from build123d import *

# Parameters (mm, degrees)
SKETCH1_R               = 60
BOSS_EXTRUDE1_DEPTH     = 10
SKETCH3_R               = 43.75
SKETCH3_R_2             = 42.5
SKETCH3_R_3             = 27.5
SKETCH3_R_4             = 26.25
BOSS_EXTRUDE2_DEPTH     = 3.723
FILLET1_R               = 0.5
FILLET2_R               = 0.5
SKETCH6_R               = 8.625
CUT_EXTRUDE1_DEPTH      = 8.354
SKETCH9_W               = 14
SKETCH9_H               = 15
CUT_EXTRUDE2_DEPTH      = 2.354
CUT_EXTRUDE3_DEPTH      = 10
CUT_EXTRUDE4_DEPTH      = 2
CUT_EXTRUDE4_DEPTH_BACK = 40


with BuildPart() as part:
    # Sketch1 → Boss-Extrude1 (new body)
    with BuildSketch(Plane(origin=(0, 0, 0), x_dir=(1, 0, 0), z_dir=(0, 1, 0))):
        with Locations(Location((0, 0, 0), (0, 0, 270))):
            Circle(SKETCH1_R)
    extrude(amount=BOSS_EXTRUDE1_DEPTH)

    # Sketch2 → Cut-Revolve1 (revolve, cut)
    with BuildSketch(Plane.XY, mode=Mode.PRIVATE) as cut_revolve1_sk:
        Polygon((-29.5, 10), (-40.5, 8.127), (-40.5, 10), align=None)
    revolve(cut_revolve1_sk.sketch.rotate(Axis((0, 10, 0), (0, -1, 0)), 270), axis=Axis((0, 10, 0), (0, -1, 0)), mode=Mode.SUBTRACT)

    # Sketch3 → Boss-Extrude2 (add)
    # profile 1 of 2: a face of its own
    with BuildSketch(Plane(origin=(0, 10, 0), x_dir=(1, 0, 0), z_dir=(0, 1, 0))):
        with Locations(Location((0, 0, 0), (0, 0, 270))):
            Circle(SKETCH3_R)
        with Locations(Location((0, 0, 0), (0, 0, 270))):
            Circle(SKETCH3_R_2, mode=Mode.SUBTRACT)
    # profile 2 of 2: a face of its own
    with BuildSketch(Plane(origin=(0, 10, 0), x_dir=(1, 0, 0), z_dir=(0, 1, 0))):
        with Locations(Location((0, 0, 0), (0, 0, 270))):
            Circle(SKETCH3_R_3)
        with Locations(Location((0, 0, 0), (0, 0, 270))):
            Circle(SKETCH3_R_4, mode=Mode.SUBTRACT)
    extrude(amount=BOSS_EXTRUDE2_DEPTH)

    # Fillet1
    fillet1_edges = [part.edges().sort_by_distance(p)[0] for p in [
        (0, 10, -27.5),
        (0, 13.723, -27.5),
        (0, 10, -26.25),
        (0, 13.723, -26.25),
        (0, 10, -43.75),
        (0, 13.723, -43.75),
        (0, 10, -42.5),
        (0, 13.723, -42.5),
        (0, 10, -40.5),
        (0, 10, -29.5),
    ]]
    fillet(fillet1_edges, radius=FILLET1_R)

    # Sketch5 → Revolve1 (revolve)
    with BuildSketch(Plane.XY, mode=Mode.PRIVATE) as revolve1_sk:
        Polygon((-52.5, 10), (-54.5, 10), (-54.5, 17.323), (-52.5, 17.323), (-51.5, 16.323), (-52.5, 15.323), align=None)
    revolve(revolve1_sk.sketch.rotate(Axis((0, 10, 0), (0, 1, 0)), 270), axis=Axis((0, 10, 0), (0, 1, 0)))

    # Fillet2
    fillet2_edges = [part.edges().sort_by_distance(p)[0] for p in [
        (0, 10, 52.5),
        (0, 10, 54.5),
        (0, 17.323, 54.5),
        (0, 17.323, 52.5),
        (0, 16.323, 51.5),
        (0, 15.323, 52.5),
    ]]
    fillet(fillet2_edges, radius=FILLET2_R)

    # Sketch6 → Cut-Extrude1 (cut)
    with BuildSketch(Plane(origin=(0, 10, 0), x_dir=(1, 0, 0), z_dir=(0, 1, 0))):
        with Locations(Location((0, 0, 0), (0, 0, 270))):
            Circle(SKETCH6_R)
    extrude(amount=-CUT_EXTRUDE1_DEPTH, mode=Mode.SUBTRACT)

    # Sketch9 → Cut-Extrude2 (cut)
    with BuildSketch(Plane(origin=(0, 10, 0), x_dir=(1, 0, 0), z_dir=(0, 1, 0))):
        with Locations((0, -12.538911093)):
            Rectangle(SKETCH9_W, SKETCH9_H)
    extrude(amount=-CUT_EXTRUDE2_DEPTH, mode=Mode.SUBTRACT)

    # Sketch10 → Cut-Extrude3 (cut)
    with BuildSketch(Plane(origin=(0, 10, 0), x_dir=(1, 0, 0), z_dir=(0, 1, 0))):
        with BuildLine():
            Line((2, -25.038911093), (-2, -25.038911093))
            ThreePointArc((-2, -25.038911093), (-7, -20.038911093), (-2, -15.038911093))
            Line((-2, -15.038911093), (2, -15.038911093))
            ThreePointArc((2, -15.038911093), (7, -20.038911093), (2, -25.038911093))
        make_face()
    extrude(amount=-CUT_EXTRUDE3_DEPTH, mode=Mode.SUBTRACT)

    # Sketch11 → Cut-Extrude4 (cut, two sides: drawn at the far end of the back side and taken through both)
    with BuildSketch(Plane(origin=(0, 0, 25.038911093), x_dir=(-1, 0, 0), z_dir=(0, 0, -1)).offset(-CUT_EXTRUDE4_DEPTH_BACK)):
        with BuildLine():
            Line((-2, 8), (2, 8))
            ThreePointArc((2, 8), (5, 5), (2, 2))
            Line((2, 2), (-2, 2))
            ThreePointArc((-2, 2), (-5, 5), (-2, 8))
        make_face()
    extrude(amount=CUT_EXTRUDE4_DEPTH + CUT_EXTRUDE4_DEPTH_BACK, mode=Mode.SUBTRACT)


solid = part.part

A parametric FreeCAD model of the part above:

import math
import FreeCAD as App
import Part
import Sketcher


def edges_at(feature, points):
    """Names of the edges that pass closest to the given points."""
    edges = feature.Shape.Edges
    near = lambda p: min(range(len(edges)), key=lambda i: edges[i].distToShape(Part.Vertex(*p))[0])
    return sorted({f"Edge{near(p) + 1}" for p in points})

doc = App.newDocument("Part")
params = doc.addObject("Spreadsheet::Sheet", "Params")
for row, (alias, value) in enumerate([
    ("sketch1_diameter", "120 mm"),
    ("pad1_length", "10 mm"),
    ("sketch2_width", "11 mm"),
    ("groove_angle", "360 deg"),
    ("sketch3_diameter", "85 mm"),
    ("sketch3_diameter2", "55 mm"),
    ("sketch3_diameter3", "87.5 mm"),
    ("sketch3_diameter4", "52.5 mm"),
    ("pad2_length", "3.723 mm"),
    ("fillet_radius", "0.5 mm"),
    ("sketch4_width", "2 mm"),
    ("revolution_angle", "360 deg"),
    ("fillet2_radius", "0.5 mm"),
    ("sketch5_diameter", "17.25 mm"),
    ("pocket1_length", "8.354 mm"),
    ("sketch6_width", "14 mm"),
    ("sketch6_height", "15 mm"),
    ("pocket2_length", "2.354 mm"),
    ("sketch7_radius", "5 mm"),
    ("sketch7_width", "4 mm"),
    ("pocket3_length", "10 mm"),
    ("sketch8_radius", "3 mm"),
    ("sketch8_width", "4 mm"),
    ("pocket4_length", "2 mm"),
    ("pocket4_length2", "40 mm"),
], start=1):
    params.set(f"A{row}", alias)
    params.set(f"B{row}", "=" + value)
    params.setAlias(f"B{row}", alias)

body = doc.addObject("PartDesign::Body", "Body")

sketch1 = doc.addObject("Sketcher::SketchObject", "Sketch")
body.addObject(sketch1)
sketch1.AttachmentSupport = (doc.XZ_Plane, [""])
sketch1.MapMode = "FlatFace"
sketch1.addGeometry(Part.Circle(App.Vector(0, 0, 0), App.Vector(0, 0, 1), 60), False)
sketch1.addConstraint([
    Sketcher.Constraint("Coincident", 0, 3, -1, 1),
    Sketcher.Constraint("Diameter", 0, 120.0),
])
sketch1.setExpression("Constraints[1]", "Params.sketch1_diameter")
pad1 = doc.addObject("PartDesign::Pad", "Pad")
body.addObject(pad1)
pad1.Profile = sketch1
pad1.setExpression("Length", "Params.pad1_length")
pad1.Reversed = True

sketch2 = doc.addObject("Sketcher::SketchObject", "Sketch001")
body.addObject(sketch2)
sketch2.AttachmentSupport = (doc.XY_Plane, [""])
sketch2.MapMode = "FlatFace"
sketch2.addGeometry([
    Part.LineSegment(App.Vector(-40.5, 8.1, 0), App.Vector(-29.5, 10, 0)),
    Part.LineSegment(App.Vector(-29.5, 10, 0), App.Vector(-40.5, 10, 0)),
    Part.LineSegment(App.Vector(-40.5, 10, 0), App.Vector(-40.5, 8.1, 0)),
], False)
sketch2.addConstraint([
    Sketcher.Constraint("Coincident", 0, 2, 1, 1),
    Sketcher.Constraint("Coincident", 1, 2, 2, 1),
    Sketcher.Constraint("Coincident", 2, 2, 0, 1),
    Sketcher.Constraint("Horizontal", 1),
    Sketcher.Constraint("Vertical", 2),
    Sketcher.Constraint("DistanceX", 1, 2, 1, 1, 11.0),
    Sketcher.Constraint("DistanceY", -1, 1, 0, 2, 10.0),
    Sketcher.Constraint("DistanceX", 0, 2, -1, 1, 29.5),
    Sketcher.Constraint("DistanceY", 2, 2, 2, 1, 1.873),
])
sketch2.setExpression("Constraints[5]", "Params.sketch2_width")
groove = doc.addObject("PartDesign::Groove", "Groove")
body.addObject(groove)
groove.Profile = sketch2
groove.ReferenceAxis = (sketch2, ["V_Axis"])
groove.setExpression("Angle", "Params.groove_angle")

sketch3 = doc.addObject("Sketcher::SketchObject", "Sketch002")
body.addObject(sketch3)
sketch3.AttachmentSupport = (doc.XZ_Plane, [""])
sketch3.MapMode = "FlatFace"
sketch3.AttachmentOffset = App.Placement(App.Vector(0, 0, -10), App.Rotation())
sketch3.addGeometry([
    Part.Circle(App.Vector(0, 0, 0), App.Vector(0, 0, 1), 44),
    Part.Circle(App.Vector(0, 0, 0), App.Vector(0, 0, 1), 42),
    Part.Circle(App.Vector(0, 0, 0), App.Vector(0, 0, 1), 28),
    Part.Circle(App.Vector(0, 0, 0), App.Vector(0, 0, 1), 26),
], False)
sketch3.addConstraint([
    Sketcher.Constraint("Coincident", 0, 3, -1, 1),
    Sketcher.Constraint("Coincident", 1, 3, -1, 1),
    Sketcher.Constraint("Coincident", 2, 3, -1, 1),
    Sketcher.Constraint("Coincident", 3, 3, -1, 1),
    Sketcher.Constraint("Diameter", 1, 85.0),
    Sketcher.Constraint("Diameter", 2, 55.0),
    Sketcher.Constraint("Diameter", 0, 87.5),
    Sketcher.Constraint("Diameter", 3, 52.5),
])
sketch3.setExpression("Constraints[4]", "Params.sketch3_diameter")
sketch3.setExpression("Constraints[5]", "Params.sketch3_diameter2")
sketch3.setExpression("Constraints[6]", "Params.sketch3_diameter3")
sketch3.setExpression("Constraints[7]", "Params.sketch3_diameter4")
pad2 = doc.addObject("PartDesign::Pad", "Pad001")
body.addObject(pad2)
pad2.Profile = sketch3
pad2.setExpression("Length", "Params.pad2_length")
pad2.Reversed = True
doc.recompute()

fillet = doc.addObject("PartDesign::Fillet", "Fillet")
body.addObject(fillet)
fillet.Base = (pad2, edges_at(pad2, [
    (0, 10, -27.5),
    (0, 13.723, -27.5),
    (0, 10, -26.25),
    (0, 13.723, -26.25),
    (0, 10, -43.75),
    (0, 13.723, -43.75),
    (0, 10, -42.5),
    (0, 13.723, -42.5),
    (0, 10, -40.5),
    (0, 10, -29.5),
]))
fillet.setExpression("Radius", "Params.fillet_radius")

sketch4 = doc.addObject("Sketcher::SketchObject", "Sketch003")
body.addObject(sketch4)
sketch4.AttachmentSupport = (doc.XY_Plane, [""])
sketch4.MapMode = "FlatFace"
sketch4.addGeometry([
    Part.LineSegment(App.Vector(-54.5, 10, 0), App.Vector(-52.5, 10, 0)),
    Part.LineSegment(App.Vector(-52.5, 10, 0), App.Vector(-52.5, 15.3, 0)),
    Part.LineSegment(App.Vector(-52.5, 15.3, 0), App.Vector(-51.5, 16.3, 0)),
    Part.LineSegment(App.Vector(-51.5, 16.3, 0), App.Vector(-52.5, 17.3, 0)),
    Part.LineSegment(App.Vector(-52.5, 17.3, 0), App.Vector(-54.5, 17.3, 0)),
    Part.LineSegment(App.Vector(-54.5, 17.3, 0), App.Vector(-54.5, 10, 0)),
], False)
sketch4.addConstraint([
    Sketcher.Constraint("Coincident", 0, 2, 1, 1),
    Sketcher.Constraint("Coincident", 1, 2, 2, 1),
    Sketcher.Constraint("Coincident", 2, 2, 3, 1),
    Sketcher.Constraint("Coincident", 3, 2, 4, 1),
    Sketcher.Constraint("Coincident", 4, 2, 5, 1),
    Sketcher.Constraint("Coincident", 5, 2, 0, 1),
    Sketcher.Constraint("Horizontal", 0),
    Sketcher.Constraint("Vertical", 1),
    Sketcher.Constraint("Horizontal", 4),
    Sketcher.Constraint("Vertical", 5),
    Sketcher.Constraint("Perpendicular", 2, 3),
    Sketcher.Constraint("Vertical", 1, 2, 3, 2),
    Sketcher.Constraint("Equal", 2, 3),
    Sketcher.Constraint("DistanceX", 0, 1, 0, 2, 2.0),
    Sketcher.Constraint("DistanceY", -1, 1, 0, 2, 10.0),
    Sketcher.Constraint("DistanceX", 1, 2, 2, 2, 1.0),
    Sketcher.Constraint("DistanceX", 0, 2, -1, 1, 52.5),
    Sketcher.Constraint("DistanceY", 1, 1, 1, 2, 5.323),
])
sketch4.setExpression("Constraints[13]", "Params.sketch4_width")
revolution = doc.addObject("PartDesign::Revolution", "Revolution")
body.addObject(revolution)
revolution.Profile = sketch4
revolution.ReferenceAxis = (sketch4, ["V_Axis"])
revolution.setExpression("Angle", "Params.revolution_angle")
doc.recompute()

fillet2 = doc.addObject("PartDesign::Fillet", "Fillet001")
body.addObject(fillet2)
fillet2.Base = (revolution, edges_at(revolution, [
    (0, 10, 52.5),
    (0, 10, 54.5),
    (0, 17.323, 54.5),
    (0, 17.323, 52.5),
    (0, 16.323, 51.5),
    (0, 15.323, 52.5),
]))
fillet2.setExpression("Radius", "Params.fillet2_radius")

sketch5 = doc.addObject("Sketcher::SketchObject", "Sketch004")
body.addObject(sketch5)
sketch5.AttachmentSupport = (doc.XZ_Plane, [""])
sketch5.MapMode = "FlatFace"
sketch5.AttachmentOffset = App.Placement(App.Vector(0, 0, -10), App.Rotation())
sketch5.addGeometry(Part.Circle(App.Vector(0, 0, 0), App.Vector(0, 0, 1), 9), False)
sketch5.addConstraint([
    Sketcher.Constraint("Coincident", 0, 3, -1, 1),
    Sketcher.Constraint("Diameter", 0, 17.25),
])
sketch5.setExpression("Constraints[1]", "Params.sketch5_diameter")
pocket1 = doc.addObject("PartDesign::Pocket", "Pocket")
body.addObject(pocket1)
pocket1.Profile = sketch5
pocket1.setExpression("Length", "Params.pocket1_length")
pocket1.Reversed = True

sketch6 = doc.addObject("Sketcher::SketchObject", "Sketch005")
body.addObject(sketch6)
sketch6.AttachmentSupport = (doc.XZ_Plane, [""])
sketch6.MapMode = "FlatFace"
sketch6.AttachmentOffset = App.Placement(App.Vector(0, 0, -10), App.Rotation())
sketch6.addGeometry([
    Part.LineSegment(App.Vector(-7, 5, 0), App.Vector(-7, 20, 0)),
    Part.LineSegment(App.Vector(-7, 20, 0), App.Vector(7, 20, 0)),
    Part.LineSegment(App.Vector(7, 20, 0), App.Vector(7, 5, 0)),
    Part.LineSegment(App.Vector(7, 5, 0), App.Vector(-7, 5, 0)),
], False)
sketch6.addConstraint([
    Sketcher.Constraint("Coincident", 0, 2, 1, 1),
    Sketcher.Constraint("Coincident", 1, 2, 2, 1),
    Sketcher.Constraint("Coincident", 2, 2, 3, 1),
    Sketcher.Constraint("Coincident", 3, 2, 0, 1),
    Sketcher.Constraint("Vertical", 0),
    Sketcher.Constraint("Horizontal", 1),
    Sketcher.Constraint("Vertical", 2),
    Sketcher.Constraint("Horizontal", 3),
    Sketcher.Constraint("DistanceX", 1, 1, 1, 2, 14.0),
    Sketcher.Constraint("DistanceY", 0, 1, 0, 2, 15.0),
    Sketcher.Constraint("DistanceX", 0, 2, -1, 1, 7.0),
    Sketcher.Constraint("DistanceY", -1, 1, 0, 2, 20.038911),
])
sketch6.setExpression("Constraints[8]", "Params.sketch6_width")
sketch6.setExpression("Constraints[9]", "Params.sketch6_height")
pocket2 = doc.addObject("PartDesign::Pocket", "Pocket001")
body.addObject(pocket2)
pocket2.Profile = sketch6
pocket2.setExpression("Length", "Params.pocket2_length")
pocket2.Reversed = True

sketch7 = doc.addObject("Sketcher::SketchObject", "Sketch006")
body.addObject(sketch7)
sketch7.AttachmentSupport = (doc.XZ_Plane, [""])
sketch7.MapMode = "FlatFace"
sketch7.AttachmentOffset = App.Placement(App.Vector(0, 0, -10), App.Rotation())
sketch7.addGeometry([
    Part.LineSegment(App.Vector(-2, 25, 0), App.Vector(2, 25, 0)),
    Part.ArcOfCircle(Part.Circle(App.Vector(2, 20, 0), App.Vector(0, 0, 1), 5), math.radians(-90), math.radians(90)),
    Part.LineSegment(App.Vector(2, 15, 0), App.Vector(-2, 15, 0)),
    Part.ArcOfCircle(Part.Circle(App.Vector(-2, 20, 0), App.Vector(0, 0, 1), 5), math.radians(90), math.radians(270)),
], False)
sketch7.addConstraint([
    Sketcher.Constraint("Tangent", 0, 2, 1, 2),
    Sketcher.Constraint("Tangent", 1, 1, 2, 1),
    Sketcher.Constraint("Tangent", 2, 2, 3, 2),
    Sketcher.Constraint("Tangent", 3, 1, 0, 1),
    Sketcher.Constraint("Horizontal", 0),
    Sketcher.Constraint("Horizontal", 2),
    Sketcher.Constraint("Radius", 1, 5.0),
    Sketcher.Constraint("DistanceX", 0, 1, 0, 2, 4.0),
    Sketcher.Constraint("DistanceX", -1, 1, 1, 3, 2.0),
    Sketcher.Constraint("DistanceY", -1, 1, 1, 3, 20.038911),
])
sketch7.setExpression("Constraints[6]", "Params.sketch7_radius")
sketch7.setExpression("Constraints[7]", "Params.sketch7_width")
pocket3 = doc.addObject("PartDesign::Pocket", "Pocket002")
body.addObject(pocket3)
pocket3.Profile = sketch7
pocket3.setExpression("Length", "Params.pocket3_length")
pocket3.Reversed = True

sketch8 = doc.addObject("Sketcher::SketchObject", "Sketch007")
body.addObject(sketch8)
sketch8.AttachmentSupport = (doc.XY_Plane, [""])
sketch8.MapMode = "FlatFace"
sketch8.AttachmentOffset = App.Placement(App.Vector(0, 0, 25.038911), App.Rotation())
sketch8.addGeometry([
    Part.LineSegment(App.Vector(-2, 8, 0), App.Vector(2, 8, 0)),
    Part.ArcOfCircle(Part.Circle(App.Vector(2, 5, 0), App.Vector(0, 0, 1), 3), math.radians(-90), math.radians(90)),
    Part.LineSegment(App.Vector(2, 2, 0), App.Vector(-2, 2, 0)),
    Part.ArcOfCircle(Part.Circle(App.Vector(-2, 5, 0), App.Vector(0, 0, 1), 3), math.radians(90), math.radians(270)),
], False)
sketch8.addConstraint([
    Sketcher.Constraint("Tangent", 0, 2, 1, 2),
    Sketcher.Constraint("Tangent", 1, 1, 2, 1),
    Sketcher.Constraint("Tangent", 2, 2, 3, 2),
    Sketcher.Constraint("Tangent", 3, 1, 0, 1),
    Sketcher.Constraint("Horizontal", 0),
    Sketcher.Constraint("Horizontal", 2),
    Sketcher.Constraint("Radius", 1, 3.0),
    Sketcher.Constraint("DistanceX", 0, 1, 0, 2, 4.0),
    Sketcher.Constraint("DistanceX", -1, 1, 1, 3, 2.0),
    Sketcher.Constraint("DistanceY", -1, 1, 1, 3, 5.0),
])
sketch8.setExpression("Constraints[6]", "Params.sketch8_radius")
sketch8.setExpression("Constraints[7]", "Params.sketch8_width")
pocket4 = doc.addObject("PartDesign::Pocket", "Pocket003")
body.addObject(pocket4)
pocket4.Profile = sketch8
pocket4.Type = "TwoLengths"
pocket4.setExpression("Length", "Params.pocket4_length")
pocket4.setExpression("Length2", "Params.pocket4_length2")

doc.recompute()
